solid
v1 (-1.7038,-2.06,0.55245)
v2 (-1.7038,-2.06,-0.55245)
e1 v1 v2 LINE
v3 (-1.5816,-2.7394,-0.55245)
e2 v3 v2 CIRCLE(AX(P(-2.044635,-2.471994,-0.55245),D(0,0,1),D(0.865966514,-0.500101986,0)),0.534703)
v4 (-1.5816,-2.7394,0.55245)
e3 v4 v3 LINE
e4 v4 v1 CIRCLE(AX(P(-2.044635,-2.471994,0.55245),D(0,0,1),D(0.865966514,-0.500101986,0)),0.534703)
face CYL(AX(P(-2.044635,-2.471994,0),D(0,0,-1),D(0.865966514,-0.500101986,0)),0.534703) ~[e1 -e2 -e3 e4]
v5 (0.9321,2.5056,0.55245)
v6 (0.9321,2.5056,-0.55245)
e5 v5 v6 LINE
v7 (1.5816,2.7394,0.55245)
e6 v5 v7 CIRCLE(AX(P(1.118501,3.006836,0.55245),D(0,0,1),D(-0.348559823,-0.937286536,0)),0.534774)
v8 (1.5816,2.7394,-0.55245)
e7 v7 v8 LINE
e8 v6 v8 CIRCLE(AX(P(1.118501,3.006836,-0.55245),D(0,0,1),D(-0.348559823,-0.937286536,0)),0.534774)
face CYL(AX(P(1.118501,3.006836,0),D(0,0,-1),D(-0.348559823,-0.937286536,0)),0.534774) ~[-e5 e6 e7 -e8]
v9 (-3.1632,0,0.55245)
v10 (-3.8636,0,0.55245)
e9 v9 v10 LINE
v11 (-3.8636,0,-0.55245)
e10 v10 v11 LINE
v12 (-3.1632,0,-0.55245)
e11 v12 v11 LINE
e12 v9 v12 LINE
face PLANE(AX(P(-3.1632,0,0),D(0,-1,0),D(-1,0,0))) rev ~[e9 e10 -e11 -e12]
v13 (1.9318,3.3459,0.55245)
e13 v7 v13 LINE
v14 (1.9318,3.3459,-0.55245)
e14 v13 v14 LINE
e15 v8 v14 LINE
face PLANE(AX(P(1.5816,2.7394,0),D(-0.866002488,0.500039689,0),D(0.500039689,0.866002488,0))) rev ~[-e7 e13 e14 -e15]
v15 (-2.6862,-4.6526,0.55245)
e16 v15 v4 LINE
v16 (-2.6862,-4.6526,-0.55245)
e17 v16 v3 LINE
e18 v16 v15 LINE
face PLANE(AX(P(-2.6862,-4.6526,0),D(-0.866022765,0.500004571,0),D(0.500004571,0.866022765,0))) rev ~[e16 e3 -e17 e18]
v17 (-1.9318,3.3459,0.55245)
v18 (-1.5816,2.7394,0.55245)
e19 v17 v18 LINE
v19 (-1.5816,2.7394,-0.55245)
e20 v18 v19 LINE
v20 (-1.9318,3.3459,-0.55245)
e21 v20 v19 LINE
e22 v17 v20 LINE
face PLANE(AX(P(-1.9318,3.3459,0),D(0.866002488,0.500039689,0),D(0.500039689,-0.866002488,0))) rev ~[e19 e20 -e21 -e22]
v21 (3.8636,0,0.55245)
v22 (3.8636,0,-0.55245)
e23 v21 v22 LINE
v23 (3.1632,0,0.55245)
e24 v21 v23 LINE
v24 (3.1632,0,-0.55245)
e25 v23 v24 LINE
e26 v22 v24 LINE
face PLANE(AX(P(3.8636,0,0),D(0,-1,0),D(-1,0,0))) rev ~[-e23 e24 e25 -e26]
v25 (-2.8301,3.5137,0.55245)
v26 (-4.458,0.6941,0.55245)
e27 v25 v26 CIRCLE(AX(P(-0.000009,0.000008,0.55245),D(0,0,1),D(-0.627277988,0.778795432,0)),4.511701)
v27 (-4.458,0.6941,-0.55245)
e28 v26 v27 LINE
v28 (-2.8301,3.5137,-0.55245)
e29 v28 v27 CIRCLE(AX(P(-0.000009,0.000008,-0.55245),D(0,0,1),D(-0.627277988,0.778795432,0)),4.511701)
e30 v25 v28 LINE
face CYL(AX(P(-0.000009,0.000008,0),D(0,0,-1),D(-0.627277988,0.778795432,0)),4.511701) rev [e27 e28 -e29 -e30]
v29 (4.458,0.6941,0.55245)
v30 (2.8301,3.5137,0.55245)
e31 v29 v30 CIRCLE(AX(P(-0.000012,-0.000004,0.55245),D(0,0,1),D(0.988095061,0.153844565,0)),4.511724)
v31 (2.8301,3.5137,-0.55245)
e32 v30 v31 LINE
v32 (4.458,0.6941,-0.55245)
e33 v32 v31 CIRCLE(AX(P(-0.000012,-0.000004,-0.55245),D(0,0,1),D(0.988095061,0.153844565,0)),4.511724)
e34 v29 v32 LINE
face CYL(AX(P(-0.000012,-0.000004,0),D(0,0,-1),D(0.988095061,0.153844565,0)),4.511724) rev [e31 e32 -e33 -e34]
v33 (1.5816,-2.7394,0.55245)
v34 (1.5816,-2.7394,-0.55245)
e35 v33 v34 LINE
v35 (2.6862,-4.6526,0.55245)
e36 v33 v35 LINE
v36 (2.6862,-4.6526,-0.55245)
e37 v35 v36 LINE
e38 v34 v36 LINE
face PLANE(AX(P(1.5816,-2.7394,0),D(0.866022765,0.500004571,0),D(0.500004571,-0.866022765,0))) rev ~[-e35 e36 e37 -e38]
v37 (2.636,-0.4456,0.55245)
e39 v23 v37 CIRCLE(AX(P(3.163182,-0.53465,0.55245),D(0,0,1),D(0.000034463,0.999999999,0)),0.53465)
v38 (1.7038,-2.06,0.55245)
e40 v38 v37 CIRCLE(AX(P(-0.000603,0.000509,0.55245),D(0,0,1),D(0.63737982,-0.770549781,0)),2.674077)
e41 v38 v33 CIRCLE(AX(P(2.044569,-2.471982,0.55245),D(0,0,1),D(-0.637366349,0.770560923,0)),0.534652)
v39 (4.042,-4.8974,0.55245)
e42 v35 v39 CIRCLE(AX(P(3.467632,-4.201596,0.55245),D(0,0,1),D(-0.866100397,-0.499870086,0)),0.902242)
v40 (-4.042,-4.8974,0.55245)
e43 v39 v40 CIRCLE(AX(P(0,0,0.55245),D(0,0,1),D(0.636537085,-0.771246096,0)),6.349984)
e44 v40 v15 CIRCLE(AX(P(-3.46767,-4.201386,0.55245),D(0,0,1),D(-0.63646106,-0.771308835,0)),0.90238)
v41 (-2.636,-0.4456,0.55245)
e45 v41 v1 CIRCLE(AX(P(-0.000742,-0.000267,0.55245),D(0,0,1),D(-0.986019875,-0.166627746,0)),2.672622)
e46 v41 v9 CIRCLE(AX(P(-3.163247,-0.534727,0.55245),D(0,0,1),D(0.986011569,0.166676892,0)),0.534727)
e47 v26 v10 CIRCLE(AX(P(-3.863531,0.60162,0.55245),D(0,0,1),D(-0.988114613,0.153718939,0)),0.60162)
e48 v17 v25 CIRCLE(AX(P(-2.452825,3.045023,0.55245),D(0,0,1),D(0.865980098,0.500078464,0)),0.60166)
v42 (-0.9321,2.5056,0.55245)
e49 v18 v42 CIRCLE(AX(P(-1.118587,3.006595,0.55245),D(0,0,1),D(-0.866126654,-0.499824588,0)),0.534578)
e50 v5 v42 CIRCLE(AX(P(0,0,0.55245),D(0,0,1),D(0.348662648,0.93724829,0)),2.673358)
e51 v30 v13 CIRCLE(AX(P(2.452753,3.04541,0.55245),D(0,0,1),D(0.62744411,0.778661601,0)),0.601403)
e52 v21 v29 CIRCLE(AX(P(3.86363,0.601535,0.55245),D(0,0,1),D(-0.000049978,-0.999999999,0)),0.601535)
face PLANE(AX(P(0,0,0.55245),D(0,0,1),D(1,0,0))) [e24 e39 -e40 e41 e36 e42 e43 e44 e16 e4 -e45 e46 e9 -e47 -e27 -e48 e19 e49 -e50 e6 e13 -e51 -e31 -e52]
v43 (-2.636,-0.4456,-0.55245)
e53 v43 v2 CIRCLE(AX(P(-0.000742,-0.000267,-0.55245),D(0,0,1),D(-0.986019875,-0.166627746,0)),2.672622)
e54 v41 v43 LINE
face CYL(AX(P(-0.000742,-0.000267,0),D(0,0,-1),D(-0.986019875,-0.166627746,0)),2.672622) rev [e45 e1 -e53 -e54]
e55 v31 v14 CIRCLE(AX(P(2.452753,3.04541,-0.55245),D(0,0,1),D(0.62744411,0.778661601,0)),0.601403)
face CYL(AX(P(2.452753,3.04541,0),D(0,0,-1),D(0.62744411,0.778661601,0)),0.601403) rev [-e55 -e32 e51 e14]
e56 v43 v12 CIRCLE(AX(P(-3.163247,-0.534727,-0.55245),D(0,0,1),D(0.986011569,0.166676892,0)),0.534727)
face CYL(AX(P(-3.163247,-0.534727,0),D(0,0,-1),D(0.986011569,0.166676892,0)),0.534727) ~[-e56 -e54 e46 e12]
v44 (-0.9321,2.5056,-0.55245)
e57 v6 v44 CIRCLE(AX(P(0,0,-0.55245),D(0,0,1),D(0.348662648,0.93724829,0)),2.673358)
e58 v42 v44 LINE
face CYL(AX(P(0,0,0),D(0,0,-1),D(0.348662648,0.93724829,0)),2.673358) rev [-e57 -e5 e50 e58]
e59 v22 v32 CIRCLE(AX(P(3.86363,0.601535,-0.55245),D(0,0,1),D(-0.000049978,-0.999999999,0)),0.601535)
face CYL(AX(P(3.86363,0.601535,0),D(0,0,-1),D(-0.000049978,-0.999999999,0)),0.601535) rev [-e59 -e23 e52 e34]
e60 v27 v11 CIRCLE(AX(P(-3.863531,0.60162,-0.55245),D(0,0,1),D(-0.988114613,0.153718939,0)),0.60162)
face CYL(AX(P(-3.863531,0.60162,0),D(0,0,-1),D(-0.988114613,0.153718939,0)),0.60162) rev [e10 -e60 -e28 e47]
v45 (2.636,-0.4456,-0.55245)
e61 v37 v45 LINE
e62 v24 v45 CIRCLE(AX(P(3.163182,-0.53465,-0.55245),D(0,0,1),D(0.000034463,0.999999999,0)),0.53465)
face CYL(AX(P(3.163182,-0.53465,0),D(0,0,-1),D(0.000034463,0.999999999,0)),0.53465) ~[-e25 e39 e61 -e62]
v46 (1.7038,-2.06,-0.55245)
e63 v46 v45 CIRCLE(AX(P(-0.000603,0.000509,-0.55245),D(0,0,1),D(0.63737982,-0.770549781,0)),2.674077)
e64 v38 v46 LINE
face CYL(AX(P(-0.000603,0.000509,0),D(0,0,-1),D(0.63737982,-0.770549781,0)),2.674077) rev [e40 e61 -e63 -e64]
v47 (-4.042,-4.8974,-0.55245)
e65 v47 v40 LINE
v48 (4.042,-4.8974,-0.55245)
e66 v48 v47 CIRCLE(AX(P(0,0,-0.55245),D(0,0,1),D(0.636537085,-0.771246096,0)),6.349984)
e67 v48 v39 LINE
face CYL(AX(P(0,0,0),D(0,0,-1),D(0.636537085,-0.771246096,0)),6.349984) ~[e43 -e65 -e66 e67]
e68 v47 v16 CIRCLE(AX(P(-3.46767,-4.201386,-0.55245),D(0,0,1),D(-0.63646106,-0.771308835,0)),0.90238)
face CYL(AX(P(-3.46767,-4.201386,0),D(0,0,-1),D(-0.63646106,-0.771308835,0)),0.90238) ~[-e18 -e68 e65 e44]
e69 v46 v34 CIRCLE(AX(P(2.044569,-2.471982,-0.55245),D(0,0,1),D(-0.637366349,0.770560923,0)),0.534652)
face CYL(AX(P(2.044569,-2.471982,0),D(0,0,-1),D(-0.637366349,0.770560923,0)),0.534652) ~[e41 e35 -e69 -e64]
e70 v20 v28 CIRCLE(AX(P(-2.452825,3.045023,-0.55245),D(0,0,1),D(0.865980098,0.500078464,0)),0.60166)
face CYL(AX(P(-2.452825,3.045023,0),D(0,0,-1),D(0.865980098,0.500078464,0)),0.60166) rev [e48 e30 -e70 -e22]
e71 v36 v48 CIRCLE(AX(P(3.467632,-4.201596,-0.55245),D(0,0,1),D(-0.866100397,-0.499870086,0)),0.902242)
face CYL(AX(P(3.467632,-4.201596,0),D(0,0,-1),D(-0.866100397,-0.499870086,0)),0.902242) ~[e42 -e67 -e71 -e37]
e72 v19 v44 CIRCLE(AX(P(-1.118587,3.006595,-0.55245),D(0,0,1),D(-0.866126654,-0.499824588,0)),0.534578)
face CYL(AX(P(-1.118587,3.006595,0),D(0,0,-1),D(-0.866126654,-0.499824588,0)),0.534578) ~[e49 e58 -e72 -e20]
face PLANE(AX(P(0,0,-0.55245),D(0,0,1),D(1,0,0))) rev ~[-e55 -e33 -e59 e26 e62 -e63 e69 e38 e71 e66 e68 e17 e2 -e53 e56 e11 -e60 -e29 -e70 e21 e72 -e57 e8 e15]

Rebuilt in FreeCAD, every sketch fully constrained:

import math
import FreeCAD as App
import Part
import Sketcher
Q = App.Units.Quantity

doc = App.newDocument("Part")
params = doc.addObject("Spreadsheet::Sheet", "Params")
for row, (alias, value) in enumerate([
    ("sketch1_radius", "0.25 in"),
    ("pad1_length", "0.0435 in"),
], start=1):
    params.set(f"A{row}", alias)
    params.set(f"B{row}", "=" + value)
    params.setAlias(f"B{row}", alias)

body = doc.addObject("PartDesign::Body", "Body")

# Sketch on XY plane
sketch1 = body.newObject("Sketcher::SketchObject", "Sketch")
sketch1.AttachmentSupport = (doc.getObject("XY_Plane"), [""])
sketch1.MapMode = "FlatFace"
sketch1.addGeometry([
    Part.ArcOfCircle(Part.Circle(App.Vector(3.4677, -4.2015, 0), App.Vector(0, 0, 1), 0.902349), math.radians(-150.005457), math.radians(-50.468429)),  # 0
    Part.ArcOfCircle(Part.Circle(App.Vector(0, 0, 0), App.Vector(0, 0, 1), 6.349984), math.radians(-50.465919), math.radians(230.465919)),  # 1
    Part.ArcOfCircle(Part.Circle(App.Vector(-3.4677, -4.2015, 0), App.Vector(0, 0, 1), 0.902273), math.radians(-129.531571), math.radians(-29.994543)),  # 2
    Part.LineSegment(App.Vector(-2.6862, -4.6526, 0), App.Vector(-1.5816, -2.7394, 0)),  # 3
    Part.ArcOfCircle(Part.Circle(App.Vector(-2.0446, -2.472, 0), App.Vector(0, 0, 1), 0.53467), math.radians(-30.008058), math.radians(50.402976)),  # 4
    Part.ArcOfCircle(Part.Circle(App.Vector(0, 0, 0), App.Vector(0, 0, 1), 2.6733), math.radians(-170.405199), math.radians(-129.593721)),  # 5
    Part.ArcOfCircle(Part.Circle(App.Vector(-3.1632, -0.5347, 0), App.Vector(0, 0, 1), 0.534676), math.radians(9.592688), math.radians(90)),  # 6
    Part.LineSegment(App.Vector(-3.1632, 0, 0), App.Vector(-3.8636, 0, 0)),  # 7
    Part.ArcOfCircle(Part.Circle(App.Vector(-3.8636, 0.6016, 0), App.Vector(0, 0, 1), 0.601554), math.radians(171.15463), math.radians(270)),  # 8
    Part.ArcOfCircle(Part.Circle(App.Vector(0, 0, 0), App.Vector(0, 0, 1), 4.511711), math.radians(128.849611), math.radians(171.150238)),  # 9
    Part.ArcOfCircle(Part.Circle(App.Vector(-2.4527, 3.0452, 0), App.Vector(0, 0, 1), 0.601463), math.radians(29.996555), math.radians(128.853168)),  # 10
    Part.LineSegment(App.Vector(-1.9318, 3.3459, 0), App.Vector(-1.5816, 2.7394, 0)),  # 11
    Part.ArcOfCircle(Part.Circle(App.Vector(-1.1185, 3.0067, 0), App.Vector(0, 0, 1), 0.534706), math.radians(-150.00658), math.radians(-69.595723)),  # 12
    Part.ArcOfCircle(Part.Circle(App.Vector(0, 0, 0), App.Vector(0, 0, 1), 2.673358), math.radians(69.594461), math.radians(110.405539)),  # 13
    Part.ArcOfCircle(Part.Circle(App.Vector(1.1185, 3.0067, 0), App.Vector(0, 0, 1), 0.534646), math.radians(-110.404277), math.radians(-29.99342)),  # 14
    Part.LineSegment(App.Vector(1.5816, 2.7394, 0), App.Vector(1.9318, 3.3459, 0)),  # 15
    Part.ArcOfCircle(Part.Circle(App.Vector(2.4527, 3.0452, 0), App.Vector(0, 0, 1), 0.6016), math.radians(51.146832), math.radians(150.003445)),  # 16
    Part.ArcOfCircle(Part.Circle(App.Vector(0, 0, 0), App.Vector(0, 0, 1), 4.511713), math.radians(8.849762), math.radians(51.150389)),  # 17
    Part.ArcOfCircle(Part.Circle(App.Vector(3.8636, 0.6016, 0), App.Vector(0, 0, 1), 0.6016), math.radians(-90), math.radians(8.84537)),  # 18
    Part.LineSegment(App.Vector(3.8636, 0, 0), App.Vector(3.1632, 0, 0)),  # 19
    Part.ArcOfCircle(Part.Circle(App.Vector(3.1632, -0.5347, 0), App.Vector(0, 0, 1), 0.5347), math.radians(90), math.radians(170.407312)),  # 20
    Part.ArcOfCircle(Part.Circle(App.Vector(0, 0, 0), App.Vector(0, 0, 1), 2.673398), math.radians(-50.406279), math.radians(-9.594801)),  # 21
    Part.ArcOfCircle(Part.Circle(App.Vector(2.0446, -2.472, 0), App.Vector(0, 0, 1), 0.534686), math.radians(129.597024), math.radians(210.008058)),  # 22
    Part.LineSegment(App.Vector(1.5816, -2.7394, 0), App.Vector(2.6862, -4.6526, 0)),  # 23
], False)
sketch1.addConstraint([
    Sketcher.Constraint("Tangent", 0, 2, 1, 1),
    Sketcher.Constraint("Tangent", 1, 2, 2, 1),
    Sketcher.Constraint("Tangent", 2, 2, 3, 1),
    Sketcher.Constraint("Tangent", 3, 2, 4, 1),
    Sketcher.Constraint("Tangent", 4, 2, 5, 2),
    Sketcher.Constraint("Tangent", 5, 1, 6, 1),
    Sketcher.Constraint("Tangent", 6, 2, 7, 1),
    Sketcher.Constraint("Tangent", 7, 2, 8, 2),
    Sketcher.Constraint("Tangent", 8, 1, 9, 2),
    Sketcher.Constraint("Tangent", 9, 1, 10, 2),
    Sketcher.Constraint("Tangent", 10, 1, 11, 1),
    Sketcher.Constraint("Tangent", 11, 2, 12, 1),
    Sketcher.Constraint("Tangent", 12, 2, 13, 2),
    Sketcher.Constraint("Tangent", 13, 1, 14, 1),
    Sketcher.Constraint("Tangent", 14, 2, 15, 1),
    Sketcher.Constraint("Tangent", 15, 2, 16, 2),
    Sketcher.Constraint("Tangent", 16, 1, 17, 2),
    Sketcher.Constraint("Tangent", 17, 1, 18, 2),
    Sketcher.Constraint("Tangent", 18, 1, 19, 1),
    Sketcher.Constraint("Tangent", 19, 2, 20, 1),
    Sketcher.Constraint("Tangent", 20, 2, 21, 2),
    Sketcher.Constraint("Tangent", 21, 1, 22, 1),
    Sketcher.Constraint("Tangent", 22, 2, 23, 1),
    Sketcher.Constraint("Tangent", 23, 2, 0, 1),
    Sketcher.Constraint("Horizontal", 7),
    Sketcher.Constraint("Horizontal", 19),
    Sketcher.Constraint("Coincident", 1, 3, -1, 1),
    Sketcher.Constraint("Coincident", 5, 3, -1, 1),
    Sketcher.Constraint("Coincident", 9, 3, -1, 1),
    Sketcher.Constraint("Coincident", 13, 3, -1, 1),
    Sketcher.Constraint("Coincident", 17, 3, -1, 1),
    Sketcher.Constraint("Coincident", 21, 3, -1, 1),
    Sketcher.Constraint("Equal", 0, 2),
    Sketcher.Constraint("Equal", 4, 6),
    Sketcher.Constraint("Equal", 8, 10),
    Sketcher.Constraint("Equal", 6, 12),
    Sketcher.Constraint("Equal", 5, 13),
    Sketcher.Constraint("Equal", 12, 14),
    Sketcher.Constraint("Equal", 10, 16),
    Sketcher.Constraint("Equal", 9, 17),
    Sketcher.Constraint("Equal", 16, 18),
    Sketcher.Constraint("Equal", 14, 20),
    Sketcher.Constraint("Equal", 13, 21),
    Sketcher.Constraint("Equal", 20, 22),
    Sketcher.Constraint("Symmetric", 3, 2, 14, 2, -1, 1),
    Sketcher.Constraint("Symmetric", 7, 2, 18, 1, -1, 1),
    Sketcher.Constraint("Symmetric", 11, 2, 22, 2, -1, 1),
    Sketcher.Constraint("Symmetric", 11, 2, 14, 2, -2),
    Sketcher.Constraint("Parallel", 3, 15),
    Sketcher.Constraint("Radius", 1, Q("0.25 in")),
    Sketcher.Constraint("Angle", 3, Q("59.9997 deg")),
    Sketcher.Constraint("Radius", 0, 0.9023),
    Sketcher.Constraint("Radius", 4, 0.5347),
    Sketcher.Constraint("Radius", 5, 2.6733),
    Sketcher.Constraint("Radius", 8, 0.6016),
    Sketcher.Constraint("Radius", 9, 4.5117),
])
sketch1.setExpression("Constraints[49]", "Params.sketch1_radius")
pad1 = body.newObject("PartDesign::Pad", "Pad")
pad1.Profile = sketch1
pad1.setExpression("Length", "Params.pad1_length")
pad1.Midplane = True

doc.recompute()
